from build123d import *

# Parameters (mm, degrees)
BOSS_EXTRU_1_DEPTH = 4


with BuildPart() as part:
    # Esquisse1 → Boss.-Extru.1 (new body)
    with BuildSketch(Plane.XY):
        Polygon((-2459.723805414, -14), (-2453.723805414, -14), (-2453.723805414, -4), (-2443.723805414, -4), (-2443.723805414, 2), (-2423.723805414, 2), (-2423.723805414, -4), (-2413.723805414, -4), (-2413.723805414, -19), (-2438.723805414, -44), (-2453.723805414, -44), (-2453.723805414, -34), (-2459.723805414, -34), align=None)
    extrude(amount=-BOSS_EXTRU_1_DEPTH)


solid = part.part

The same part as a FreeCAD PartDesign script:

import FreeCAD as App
import Part
import Sketcher
Q = App.Units.Quantity

doc = App.newDocument("Part")
body = doc.addObject("PartDesign::Body", "Body")

# Sketch on XY plane
sketch1 = doc.addObject("Sketcher::SketchObject", "Sketch")
body.addObject(sketch1)
sketch1.AttachmentSupport = (doc.XY_Plane, [""])
sketch1.MapMode = "FlatFace"
sketch1.addGeometry(Part.LineSegment(App.Vector(-2454, -14, 0), App.Vector(-2460, -14, 0)), False)
sketch1.addGeometry(Part.LineSegment(App.Vector(-2460, -14, 0), App.Vector(-2460, -34, 0)), False)
sketch1.addGeometry(Part.LineSegment(App.Vector(-2460, -34, 0), App.Vector(-2454, -34, 0)), False)
sketch1.addGeometry(Part.LineSegment(App.Vector(-2454, -34, 0), App.Vector(-2454, -44, 0)), False)
sketch1.addGeometry(Part.LineSegment(App.Vector(-2454, -44, 0), App.Vector(-2439, -44, 0)), False)
sketch1.addGeometry(Part.LineSegment(App.Vector(-2439, -44, 0), App.Vector(-2414, -19, 0)), False)
sketch1.addGeometry(Part.LineSegment(App.Vector(-2414, -19, 0), App.Vector(-2414, -4, 0)), False)
sketch1.addGeometry(Part.LineSegment(App.Vector(-2414, -4, 0), App.Vector(-2424, -4, 0)), False)
sketch1.addGeometry(Part.LineSegment(App.Vector(-2424, -4, 0), App.Vector(-2424, 2, 0)), False)
sketch1.addGeometry(Part.LineSegment(App.Vector(-2424, 2, 0), App.Vector(-2444, 2, 0)), False)
sketch1.addGeometry(Part.LineSegment(App.Vector(-2444, 2, 0), App.Vector(-2444, -4, 0)), False)
sketch1.addGeometry(Part.LineSegment(App.Vector(-2444, -4, 0), App.Vector(-2454, -4, 0)), False)
sketch1.addGeometry(Part.LineSegment(App.Vector(-2454, -4, 0), App.Vector(-2454, -14, 0)), False)
sketch1.addConstraint(Sketcher.Constraint("Coincident", 0, 2, 1, 1))
sketch1.addConstraint(Sketcher.Constraint("Coincident", 1, 2, 2, 1))
sketch1.addConstraint(Sketcher.Constraint("Coincident", 2, 2, 3, 1))
sketch1.addConstraint(Sketcher.Constraint("Coincident", 3, 2, 4, 1))
sketch1.addConstraint(Sketcher.Constraint("Coincident", 4, 2, 5, 1))
sketch1.addConstraint(Sketcher.Constraint("Coincident", 5, 2, 6, 1))
sketch1.addConstraint(Sketcher.Constraint("Coincident", 6, 2, 7, 1))
sketch1.addConstraint(Sketcher.Constraint("Coincident", 7, 2, 8, 1))
sketch1.addConstraint(Sketcher.Constraint("Coincident", 8, 2, 9, 1))
sketch1.addConstraint(Sketcher.Constraint("Coincident", 9, 2, 10, 1))
sketch1.addConstraint(Sketcher.Constraint("Coincident", 10, 2, 11, 1))
sketch1.addConstraint(Sketcher.Constraint("Coincident", 11, 2, 12, 1))
sketch1.addConstraint(Sketcher.Constraint("Coincident", 12, 2, 0, 1))
sketch1.addConstraint(Sketcher.Constraint("Horizontal", 0))
sketch1.addConstraint(Sketcher.Constraint("Vertical", 1))
sketch1.addConstraint(Sketcher.Constraint("Horizontal", 2))
sketch1.addConstraint(Sketcher.Constraint("Vertical", 3))
sketch1.addConstraint(Sketcher.Constraint("Horizontal", 4))
sketch1.addConstraint(Sketcher.Constraint("Vertical", 6))
sketch1.addConstraint(Sketcher.Constraint("Horizontal", 7))
sketch1.addConstraint(Sketcher.Constraint("Vertical", 8))
sketch1.addConstraint(Sketcher.Constraint("Horizontal", 9))
sketch1.addConstraint(Sketcher.Constraint("Vertical", 10))
sketch1.addConstraint(Sketcher.Constraint("Horizontal", 11))
sketch1.addConstraint(Sketcher.Constraint("Vertical", 12))
sketch1.addConstraint(Sketcher.Constraint("Horizontal", 7, 2, 10, 2))
sketch1.addConstraint(Sketcher.Constraint("Vertical", 3, 2, 11, 2))
sketch1.addConstraint(Sketcher.Constraint("Equal", 7, 11))
sketch1.addConstraint(Sketcher.Constraint("Equal", 9, 1))
sketch1.addConstraint(Sketcher.Constraint("Equal", 11, 3))
sketch1.addConstraint(Sketcher.Constraint("Equal", 4, 6))
sketch1.addConstraint(Sketcher.Constraint("Equal", 2, 8))
sketch1.addConstraint(Sketcher.Constraint("Equal", 3, 12))
sketch1.addConstraint(Sketcher.Constraint("DistanceX", 0, 2, 0, 1, Q("6 mm")))
sketch1.addConstraint(Sketcher.Constraint("DistanceX", 4, 1, 4, 2, Q("15 mm")))
sketch1.addConstraint(Sketcher.Constraint("DistanceX", 7, 2, 7, 1, Q("10 mm")))
sketch1.addConstraint(Sketcher.Constraint("DistanceX", 9, 2, 9, 1, Q("20 mm")))
sketch1.addConstraint(Sketcher.Constraint("DistanceY", 0, 2, -1, 1, Q("14 mm")))
sketch1.addConstraint(Sketcher.Constraint("DistanceX", 0, 2, -1, 1, Q("2459.723805 mm")))
pad1 = doc.addObject("PartDesign::Pad", "Pad")
body.addObject(pad1)
pad1.Profile = sketch1
pad1.Length = 4
pad1.Reversed = True

doc.recompute()
